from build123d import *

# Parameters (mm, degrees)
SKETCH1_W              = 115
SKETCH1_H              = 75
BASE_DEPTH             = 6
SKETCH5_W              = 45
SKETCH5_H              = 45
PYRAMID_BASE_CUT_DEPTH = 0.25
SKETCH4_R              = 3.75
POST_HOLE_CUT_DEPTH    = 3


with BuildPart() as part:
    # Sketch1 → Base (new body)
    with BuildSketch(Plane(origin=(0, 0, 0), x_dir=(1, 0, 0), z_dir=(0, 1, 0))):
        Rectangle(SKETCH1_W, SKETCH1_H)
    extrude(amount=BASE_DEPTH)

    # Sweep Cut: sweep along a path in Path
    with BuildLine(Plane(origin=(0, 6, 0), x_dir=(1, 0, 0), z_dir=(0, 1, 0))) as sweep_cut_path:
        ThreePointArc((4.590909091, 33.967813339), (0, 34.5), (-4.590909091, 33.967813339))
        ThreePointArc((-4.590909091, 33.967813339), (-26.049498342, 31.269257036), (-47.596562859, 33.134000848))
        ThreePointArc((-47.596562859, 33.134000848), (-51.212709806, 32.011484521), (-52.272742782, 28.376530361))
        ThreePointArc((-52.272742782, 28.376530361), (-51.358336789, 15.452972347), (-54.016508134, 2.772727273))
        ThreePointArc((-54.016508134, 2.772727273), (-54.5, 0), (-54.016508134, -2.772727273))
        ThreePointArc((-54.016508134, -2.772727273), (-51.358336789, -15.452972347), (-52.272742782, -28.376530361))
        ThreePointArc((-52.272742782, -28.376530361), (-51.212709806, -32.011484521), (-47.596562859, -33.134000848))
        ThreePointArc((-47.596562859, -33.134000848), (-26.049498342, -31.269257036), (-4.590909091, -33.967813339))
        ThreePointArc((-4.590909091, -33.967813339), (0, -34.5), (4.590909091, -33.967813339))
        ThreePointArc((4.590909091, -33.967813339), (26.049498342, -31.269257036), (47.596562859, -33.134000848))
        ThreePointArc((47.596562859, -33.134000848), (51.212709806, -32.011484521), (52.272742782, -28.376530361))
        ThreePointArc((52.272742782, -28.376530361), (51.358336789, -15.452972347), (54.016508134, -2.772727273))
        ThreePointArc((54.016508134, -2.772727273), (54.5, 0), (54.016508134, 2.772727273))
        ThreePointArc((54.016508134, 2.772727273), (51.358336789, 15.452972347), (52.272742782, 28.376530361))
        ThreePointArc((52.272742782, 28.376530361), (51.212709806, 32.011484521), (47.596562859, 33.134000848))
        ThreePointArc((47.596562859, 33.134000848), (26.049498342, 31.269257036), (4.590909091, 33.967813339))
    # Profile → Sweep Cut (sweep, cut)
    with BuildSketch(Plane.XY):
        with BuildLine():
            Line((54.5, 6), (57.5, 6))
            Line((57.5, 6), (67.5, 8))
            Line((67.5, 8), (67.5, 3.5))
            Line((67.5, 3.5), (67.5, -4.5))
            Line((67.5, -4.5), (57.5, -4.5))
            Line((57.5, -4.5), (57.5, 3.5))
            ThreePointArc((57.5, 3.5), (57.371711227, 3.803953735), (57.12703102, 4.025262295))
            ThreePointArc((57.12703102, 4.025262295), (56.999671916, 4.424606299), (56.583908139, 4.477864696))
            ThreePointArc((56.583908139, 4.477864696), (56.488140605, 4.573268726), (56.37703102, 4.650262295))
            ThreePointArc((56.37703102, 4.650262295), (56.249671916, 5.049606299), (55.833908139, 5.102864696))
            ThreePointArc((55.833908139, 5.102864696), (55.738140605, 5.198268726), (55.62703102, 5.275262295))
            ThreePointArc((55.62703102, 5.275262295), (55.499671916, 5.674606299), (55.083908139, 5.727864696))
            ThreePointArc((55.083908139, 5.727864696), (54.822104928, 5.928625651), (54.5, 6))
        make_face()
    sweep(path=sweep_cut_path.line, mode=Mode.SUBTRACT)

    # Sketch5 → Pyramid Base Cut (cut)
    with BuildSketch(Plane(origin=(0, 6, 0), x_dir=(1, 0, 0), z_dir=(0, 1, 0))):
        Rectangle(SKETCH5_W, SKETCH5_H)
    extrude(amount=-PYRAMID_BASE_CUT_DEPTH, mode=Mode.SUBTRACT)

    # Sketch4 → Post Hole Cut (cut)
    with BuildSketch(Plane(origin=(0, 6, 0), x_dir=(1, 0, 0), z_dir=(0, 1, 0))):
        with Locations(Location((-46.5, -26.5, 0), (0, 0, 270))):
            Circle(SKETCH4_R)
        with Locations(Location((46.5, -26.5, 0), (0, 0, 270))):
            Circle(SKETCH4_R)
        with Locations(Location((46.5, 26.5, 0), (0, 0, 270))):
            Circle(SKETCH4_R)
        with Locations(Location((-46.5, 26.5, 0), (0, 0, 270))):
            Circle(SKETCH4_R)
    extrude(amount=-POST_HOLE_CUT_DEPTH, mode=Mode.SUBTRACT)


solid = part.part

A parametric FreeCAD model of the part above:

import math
import FreeCAD as App
import Part
import Sketcher
Q = App.Units.Quantity


def add_polygon(sketch, points):
    """Adds a closed chain of lines whose ends are joined by coincident constraints."""
    first, n = sketch.GeometryCount, len(points)
    for a, b in zip(points, points[1:] + points[:1]):
        sketch.addGeometry(Part.LineSegment(App.Vector(*a, 0), App.Vector(*b, 0)), False)
    for i in range(n):
        sketch.addConstraint(Sketcher.Constraint("Coincident", first + i, 2, first + (i + 1) % n, 1))

doc = App.newDocument("Part")
body = doc.addObject("PartDesign::Body", "Body")

sketch1 = doc.addObject("Sketcher::SketchObject", "Sketch")
body.addObject(sketch1)
sketch1.AttachmentSupport = (doc.XZ_Plane, [""])
sketch1.MapMode = "FlatFace"
add_polygon(sketch1, [(-58, -38), (-58, 38), (58, 38), (58, -38)])
sketch1.addConstraint([
    Sketcher.Constraint("Vertical", 0),
    Sketcher.Constraint("Horizontal", 1),
    Sketcher.Constraint("Vertical", 2),
    Sketcher.Constraint("Horizontal", 3),
    Sketcher.Constraint("Symmetric", 0, 2, 2, 2, -1, 1),
    Sketcher.Constraint("DistanceX", 1, 1, 1, 2, Q("115 mm")),
    Sketcher.Constraint("DistanceY", 0, 1, 0, 2, Q("75 mm")),
])
pad1 = doc.addObject("PartDesign::Pad", "Pad")
body.addObject(pad1)
pad1.Profile = sketch1
pad1.Length = 6
pad1.Reversed = True

sketch2 = doc.addObject("Sketcher::SketchObject", "Sketch001")
body.addObject(sketch2)
sketch2.AttachmentSupport = (doc.XY_Plane, [""])
sketch2.MapMode = "FlatFace"
sketch2.addGeometry([
    Part.LineSegment(App.Vector(57.5, 6, 0), App.Vector(54.5, 6, 0)),
    Part.ArcOfCircle(Part.Circle(App.Vector(54.5, 5.24, 0), App.Vector(0, 0, 1), 0.76), math.radians(40), math.radians(90)),
    Part.ArcOfCircle(Part.Circle(App.Vector(55.25, 5.38, 0), App.Vector(0, 0, 1), 0.39), math.radians(-15), math.radians(115)),
    Part.ArcOfCircle(Part.Circle(App.Vector(55.25, 4.61, 0), App.Vector(0, 0, 1), 0.76), math.radians(40), math.radians(60)),
    Part.ArcOfCircle(Part.Circle(App.Vector(56, 4.75, 0), App.Vector(0, 0, 1), 0.39), math.radians(-15), math.radians(115)),
    Part.ArcOfCircle(Part.Circle(App.Vector(56, 3.99, 0), App.Vector(0, 0, 1), 0.76), math.radians(40), math.radians(60)),
    Part.ArcOfCircle(Part.Circle(App.Vector(56.75, 4.12, 0), App.Vector(0, 0, 1), 0.39), math.radians(-15), math.radians(115)),
    Part.ArcOfCircle(Part.Circle(App.Vector(56.75, 3.36, 0), App.Vector(0, 0, 1), 0.76), math.radians(10), math.radians(60)),
    Part.LineSegment(App.Vector(57.5, 3.5, 0), App.Vector(57.5, -4.5, 0)),
    Part.LineSegment(App.Vector(57.5, -4.5, 0), App.Vector(67.5, -4.5, 0)),
    Part.LineSegment(App.Vector(67.5, -4.5, 0), App.Vector(67.5, 8, 0)),
    Part.LineSegment(App.Vector(67.5, 8, 0), App.Vector(57.5, 6, 0)),
], False)
sketch2.addConstraint([
    Sketcher.Constraint("Tangent", 0, 2, 1, 2),
    Sketcher.Constraint("Coincident", 1, 1, 2, 2),
    Sketcher.Constraint("Coincident", 2, 1, 3, 2),
    Sketcher.Constraint("Coincident", 3, 1, 4, 2),
    Sketcher.Constraint("Coincident", 4, 1, 5, 2),
    Sketcher.Constraint("Coincident", 5, 1, 6, 2),
    Sketcher.Constraint("Coincident", 6, 1, 7, 2),
    Sketcher.Constraint("Coincident", 7, 1, 8, 1),
    Sketcher.Constraint("Coincident", 8, 2, 9, 1),
    Sketcher.Constraint("Coincident", 9, 2, 10, 1),
    Sketcher.Constraint("Coincident", 10, 2, 11, 1),
    Sketcher.Constraint("Coincident", 11, 2, 0, 1),
    Sketcher.Constraint("Horizontal", 0),
    Sketcher.Constraint("Vertical", 8),
    Sketcher.Constraint("Horizontal", 9),
    Sketcher.Constraint("Vertical", 10),
    Sketcher.Constraint("Equal", 1, 3),
    Sketcher.Constraint("Equal", 2, 4),
    Sketcher.Constraint("Equal", 3, 5),
    Sketcher.Constraint("Equal", 4, 6),
    Sketcher.Constraint("Equal", 5, 7),
    Sketcher.Constraint("Vertical", 2, 3, 3, 3),
    Sketcher.Constraint("Vertical", 4, 3, 5, 3),
    Sketcher.Constraint("Vertical", 6, 3, 7, 3),
    Sketcher.Constraint("Vertical", 8, 2, 11, 2),
    Sketcher.Constraint("DistanceX", 0, 2, 0, 1, Q("3 mm")),
    Sketcher.Constraint("DistanceX", 9, 1, 9, 2, Q("10 mm")),
    Sketcher.Constraint("DistanceY", 8, 2, 8, 1, Q("8 mm")),
    Sketcher.Constraint("Radius", 2, Q("0.39 mm")),
    Sketcher.Constraint("DistanceY", 10, 1, 10, 2, Q("12.5 mm")),
    Sketcher.Constraint("DistanceX", -1, 1, 4, 3, Q("56 mm")),
    Sketcher.Constraint("DistanceY", -1, 1, 0, 2, Q("6 mm")),
    Sketcher.Constraint("DistanceY", -1, 1, 10, 2, Q("8 mm")),
    Sketcher.Constraint("DistanceX", -1, 1, 1, 3, Q("54.5 mm")),
    Sketcher.Constraint("Radius", 1, Q("0.7625 mm")),
    Sketcher.Constraint("DistanceX", 3, 3, 6, 3, Q("1.5 mm")),
    Sketcher.Constraint("DistanceX", -1, 1, 2, 3, Q("55.25 mm")),
    Sketcher.Constraint("DistanceY", -1, 1, 4, 3, Q("4.75 mm")),
    Sketcher.Constraint("DistanceY", 5, 3, 1, 3, Q("1.25 mm")),
    Sketcher.Constraint("DistanceY", 6, 3, 2, 3, Q("1.25 mm")),
    Sketcher.Constraint("DistanceY", 7, 3, 3, 3, Q("1.25 mm")),
    Sketcher.Constraint("DistanceX", 1, 1, 3, 1, Q("0.75 mm")),
])

sketch3 = doc.addObject("Sketcher::SketchObject", "Sketch002")
body.addObject(sketch3)
sketch3.AttachmentSupport = (doc.XZ_Plane, [""])
sketch3.MapMode = "FlatFace"
sketch3.AttachmentOffset = App.Placement(App.Vector(0, 0, -6), App.Rotation())
sketch3.addGeometry([
    Part.ArcOfCircle(Part.Circle(App.Vector(0, -14.4, 0), App.Vector(0, 0, 1), 20.1), math.radians(-103), math.radians(-77)),
    Part.ArcOfCircle(Part.Circle(App.Vector(-28, -133.7, 0), App.Vector(0, 0, 1), 102.5), math.radians(77), math.radians(101)),
    Part.ArcOfCircle(Part.Circle(App.Vector(-48.4, -29.2, 0), App.Vector(0, 0, 1), 4), math.radians(168), math.radians(281)),
    Part.ArcOfCircle(Part.Circle(App.Vector(-98.1, -18.6, 0), App.Vector(0, 0, 1), 46.9), math.radians(-12), math.radians(20)),
    Part.ArcOfCircle(Part.Circle(App.Vector(-46.3, 0, 0), App.Vector(0, 0, 1), 8.2), math.radians(160), math.radians(200)),
    Part.ArcOfCircle(Part.Circle(App.Vector(-98.1, 18.6, 0), App.Vector(0, 0, 1), 46.9), math.radians(-20), math.radians(12)),
    Part.ArcOfCircle(Part.Circle(App.Vector(-48.4, 29.2, 0), App.Vector(0, 0, 1), 4), math.radians(79), math.radians(192)),
    Part.ArcOfCircle(Part.Circle(App.Vector(-28, 133.7, 0), App.Vector(0, 0, 1), 102.5), math.radians(-101), math.radians(-77)),
    Part.ArcOfCircle(Part.Circle(App.Vector(0, 14.4, 0), App.Vector(0, 0, 1), 20.1), math.radians(77), math.radians(103)),
    Part.ArcOfCircle(Part.Circle(App.Vector(28, 133.7, 0), App.Vector(0, 0, 1), 102.5), math.radians(-103), math.radians(-79)),
    Part.ArcOfCircle(Part.Circle(App.Vector(48.4, 29.2, 0), App.Vector(0, 0, 1), 4), math.radians(-12), math.radians(101)),
    Part.ArcOfCircle(Part.Circle(App.Vector(98.1, 18.6, 0), App.Vector(0, 0, 1), 46.9), math.radians(168), math.radians(200)),
    Part.ArcOfCircle(Part.Circle(App.Vector(46.3, 0, 0), App.Vector(0, 0, 1), 8.2), math.radians(-20), math.radians(20)),
    Part.ArcOfCircle(Part.Circle(App.Vector(98.1, -18.6, 0), App.Vector(0, 0, 1), 46.9), math.radians(160), math.radians(192)),
    Part.ArcOfCircle(Part.Circle(App.Vector(48.4, -29.2, 0), App.Vector(0, 0, 1), 4), math.radians(-101), math.radians(12)),
    Part.ArcOfCircle(Part.Circle(App.Vector(28, -133.7, 0), App.Vector(0, 0, 1), 102.5), math.radians(79), math.radians(103)),
], False)
sketch3.addConstraint([
    Sketcher.Constraint("Tangent", 0, 1, 1, 1),
    Sketcher.Constraint("Tangent", 1, 2, 2, 2),
    Sketcher.Constraint("Tangent", 2, 1, 3, 1),
    Sketcher.Constraint("Tangent", 3, 2, 4, 2),
    Sketcher.Constraint("Tangent", 4, 1, 5, 1),
    Sketcher.Constraint("Tangent", 5, 2, 6, 2),
    Sketcher.Constraint("Tangent", 6, 1, 7, 1),
    Sketcher.Constraint("Tangent", 7, 2, 8, 2),
    Sketcher.Constraint("Tangent", 8, 1, 9, 1),
    Sketcher.Constraint("Tangent", 9, 2, 10, 2),
    Sketcher.Constraint("Tangent", 10, 1, 11, 1),
    Sketcher.Constraint("Tangent", 11, 2, 12, 2),
    Sketcher.Constraint("Tangent", 12, 1, 13, 1),
    Sketcher.Constraint("Tangent", 13, 2, 14, 2),
    Sketcher.Constraint("Tangent", 14, 1, 15, 1),
    Sketcher.Constraint("Tangent", 15, 2, 0, 2),
    Sketcher.Constraint("Equal", 3, 5),
    Sketcher.Constraint("Equal", 2, 6),
    Sketcher.Constraint("Equal", 1, 7),
    Sketcher.Constraint("Equal", 0, 8),
    Sketcher.Constraint("Equal", 7, 9),
    Sketcher.Constraint("Equal", 6, 10),
    Sketcher.Constraint("Equal", 5, 11),
    Sketcher.Constraint("Equal", 4, 12),
    Sketcher.Constraint("Equal", 11, 13),
    Sketcher.Constraint("Equal", 10, 14),
    Sketcher.Constraint("Equal", 9, 15),
    Sketcher.Constraint("Symmetric", 0, 3, 8, 3, -1, 1),
    Sketcher.Constraint("Symmetric", 2, 3, 10, 3, -1, 1),
    Sketcher.Constraint("Symmetric", 4, 3, 12, 3, -1, 1),
    Sketcher.Constraint("Symmetric", 6, 3, 14, 3, -1, 1),
    Sketcher.Constraint("Symmetric", 7, 3, 9, 3, -2),
    Sketcher.Constraint("Symmetric", 5, 3, 11, 3, -2),
    Sketcher.Constraint("Radius", 2, Q("4 mm")),
    Sketcher.Constraint("Radius", 4, Q("8.192259 mm")),
    Sketcher.Constraint("DistanceY", 1, 2, -1, 1, Q("33.134001 mm")),
    Sketcher.Constraint("Radius", 0, Q("20.067836 mm")),
    Sketcher.Constraint("Radius", 1, Q("102.484026 mm")),
    Sketcher.Constraint("Radius", 3, Q("46.875557 mm")),
    Sketcher.Constraint("DistanceX", 2, 1, 4, 3, Q("5.965002 mm")),
    Sketcher.Constraint("DistanceY", 0, 3, 6, 3, Q("43.639699 mm")),
    Sketcher.Constraint("DistanceX", 4, 3, 11, 3, Q("144.433298 mm")),
])
doc.recompute()

subtractivepipe = doc.addObject("PartDesign::SubtractivePipe", "SubtractivePipe")
body.addObject(subtractivepipe)
subtractivepipe.Profile = sketch2
subtractivepipe.Spine = (sketch3, ["Edge1", "Edge2", "Edge3", "Edge4", "Edge5", "Edge6", "Edge7", "Edge8", "Edge9", "Edge10", "Edge11", "Edge12", "Edge13", "Edge14", "Edge15", "Edge16"])

sketch4 = doc.addObject("Sketcher::SketchObject", "Sketch003")
body.addObject(sketch4)
sketch4.AttachmentSupport = (doc.XZ_Plane, [""])
sketch4.MapMode = "FlatFace"
sketch4.AttachmentOffset = App.Placement(App.Vector(0, 0, -6), App.Rotation())
add_polygon(sketch4, [(-22, -22), (-22, 22), (22, 22), (22, -22)])
sketch4.addConstraint([
    Sketcher.Constraint("Vertical", 0),
    Sketcher.Constraint("Horizontal", 1),
    Sketcher.Constraint("Vertical", 2),
    Sketcher.Constraint("Horizontal", 3),
    Sketcher.Constraint("Symmetric", 0, 2, 2, 2, -1, 1),
    Sketcher.Constraint("Equal", 3, 0),
    Sketcher.Constraint("DistanceX", 1, 1, 1, 2, Q("45 mm")),
])
pocket1 = doc.addObject("PartDesign::Pocket", "Pocket")
body.addObject(pocket1)
pocket1.Profile = sketch4
pocket1.Length = 0.25
pocket1.Reversed = True

sketch5 = doc.addObject("Sketcher::SketchObject", "Sketch004")
body.addObject(sketch5)
sketch5.AttachmentSupport = (doc.XZ_Plane, [""])
sketch5.MapMode = "FlatFace"
sketch5.AttachmentOffset = App.Placement(App.Vector(0, 0, -6), App.Rotation())
sketch5.addGeometry([
    Part.Circle(App.Vector(-46.5, 26.5, 0), App.Vector(0, 0, 1), 3.8),
    Part.Circle(App.Vector(46.5, 26.5, 0), App.Vector(0, 0, 1), 3.8),
    Part.Circle(App.Vector(46.5, -26.5, 0), App.Vector(0, 0, 1), 3.8),
    Part.Circle(App.Vector(-46.5, -26.5, 0), App.Vector(0, 0, 1), 3.8),
], False)
sketch5.addConstraint([
    Sketcher.Constraint("Equal", 0, 1),
    Sketcher.Constraint("Equal", 1, 2),
    Sketcher.Constraint("Equal", 2, 3),
    Sketcher.Constraint("Symmetric", 0, 3, 2, 3, -1, 1),
    Sketcher.Constraint("Symmetric", 1, 3, 3, 3, -1, 1),
    Sketcher.Constraint("Symmetric", 0, 3, 1, 3, -2),
    Sketcher.Constraint("Diameter", 0, Q("7.5 mm")),
    Sketcher.Constraint("DistanceX", 0, 3, 1, 3, Q("93 mm")),
    Sketcher.Constraint("DistanceY", 2, 3, 1, 3, Q("53 mm")),
])
pocket2 = doc.addObject("PartDesign::Pocket", "Pocket001")
body.addObject(pocket2)
pocket2.Profile = sketch5
pocket2.Length = 3
pocket2.Reversed = True

doc.recompute()
